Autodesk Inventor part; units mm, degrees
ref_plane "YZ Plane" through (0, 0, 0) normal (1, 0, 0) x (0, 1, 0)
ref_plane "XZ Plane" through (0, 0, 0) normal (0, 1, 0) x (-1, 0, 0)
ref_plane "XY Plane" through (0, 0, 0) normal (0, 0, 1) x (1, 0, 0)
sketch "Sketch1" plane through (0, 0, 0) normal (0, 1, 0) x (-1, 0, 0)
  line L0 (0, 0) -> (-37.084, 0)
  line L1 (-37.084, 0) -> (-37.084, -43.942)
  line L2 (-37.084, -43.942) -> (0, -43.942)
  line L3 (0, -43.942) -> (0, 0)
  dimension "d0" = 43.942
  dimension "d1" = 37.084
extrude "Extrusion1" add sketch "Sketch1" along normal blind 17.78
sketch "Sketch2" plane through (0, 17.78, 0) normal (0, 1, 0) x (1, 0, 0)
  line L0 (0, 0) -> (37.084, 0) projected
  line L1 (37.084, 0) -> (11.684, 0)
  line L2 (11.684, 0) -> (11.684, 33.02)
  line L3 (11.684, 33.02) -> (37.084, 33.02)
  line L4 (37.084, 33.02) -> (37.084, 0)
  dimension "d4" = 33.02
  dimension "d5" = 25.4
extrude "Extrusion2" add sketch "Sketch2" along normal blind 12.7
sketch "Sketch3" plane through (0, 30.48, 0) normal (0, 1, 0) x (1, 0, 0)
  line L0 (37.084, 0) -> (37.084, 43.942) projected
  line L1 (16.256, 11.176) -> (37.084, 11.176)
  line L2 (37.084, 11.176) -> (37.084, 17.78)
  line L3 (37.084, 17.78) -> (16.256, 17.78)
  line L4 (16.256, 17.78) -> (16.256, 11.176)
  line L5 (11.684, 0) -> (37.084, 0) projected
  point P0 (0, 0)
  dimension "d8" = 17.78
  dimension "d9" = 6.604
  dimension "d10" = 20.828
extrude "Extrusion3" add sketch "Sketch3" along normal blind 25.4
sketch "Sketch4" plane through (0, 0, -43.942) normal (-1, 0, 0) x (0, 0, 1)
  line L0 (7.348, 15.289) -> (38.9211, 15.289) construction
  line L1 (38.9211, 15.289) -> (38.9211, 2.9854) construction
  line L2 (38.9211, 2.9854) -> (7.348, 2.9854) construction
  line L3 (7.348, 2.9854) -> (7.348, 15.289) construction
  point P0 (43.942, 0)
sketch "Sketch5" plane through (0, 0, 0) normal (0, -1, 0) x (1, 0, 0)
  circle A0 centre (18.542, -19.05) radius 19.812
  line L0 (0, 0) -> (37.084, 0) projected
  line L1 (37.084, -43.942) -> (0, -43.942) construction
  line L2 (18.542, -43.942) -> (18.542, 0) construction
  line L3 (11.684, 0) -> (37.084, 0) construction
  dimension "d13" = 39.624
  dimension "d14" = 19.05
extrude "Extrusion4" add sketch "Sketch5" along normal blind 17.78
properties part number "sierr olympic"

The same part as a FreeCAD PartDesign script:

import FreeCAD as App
import Part
import Sketcher
Q = App.Units.Quantity

doc = App.newDocument("Part")
body = doc.addObject("PartDesign::Body", "Body")

# Sketch on XZ plane
sketch1 = body.newObject("Sketcher::SketchObject", "Sketch")
sketch1.AttachmentSupport = (doc.getObject("XZ_Plane"), [""])
sketch1.MapMode = "FlatFace"
sketch1.addGeometry([
    Part.LineSegment(App.Vector(0, -44, 0), App.Vector(0, 0, 0)),
    Part.LineSegment(App.Vector(0, 0, 0), App.Vector(37, 0, 0)),
    Part.LineSegment(App.Vector(37, 0, 0), App.Vector(37, -44, 0)),
    Part.LineSegment(App.Vector(37, -44, 0), App.Vector(0, -44, 0)),
], False)
sketch1.addConstraint([
    Sketcher.Constraint("Coincident", 0, 2, 1, 1),
    Sketcher.Constraint("Coincident", 1, 2, 2, 1),
    Sketcher.Constraint("Coincident", 2, 2, 3, 1),
    Sketcher.Constraint("Coincident", 3, 2, 0, 1),
    Sketcher.Constraint("Vertical", 0),
    Sketcher.Constraint("Horizontal", 1),
    Sketcher.Constraint("Vertical", 2),
    Sketcher.Constraint("Horizontal", 3),
    Sketcher.Constraint("Coincident", 0, 2, -1, 1),
    Sketcher.Constraint("DistanceX", 1, 1, 1, 2, Q("1.46 in")),
    Sketcher.Constraint("DistanceY", 0, 1, 0, 2, Q("1.73 in")),
])
pad1 = body.newObject("PartDesign::Pad", "Pad")
pad1.Profile = sketch1
pad1.Length = Q("0.7 in")
pad1.Reversed = True

# Sketch on XZ plane
sketch2 = body.newObject("Sketcher::SketchObject", "Sketch001")
sketch2.AttachmentSupport = (doc.getObject("XZ_Plane"), [""])
sketch2.MapMode = "FlatFace"
sketch2.AttachmentOffset = App.Placement(App.Vector(0, 0, -0.7 * 25.4), App.Rotation())
sketch2.addGeometry([
    Part.LineSegment(App.Vector(12, -33, 0), App.Vector(12, 0, 0)),
    Part.LineSegment(App.Vector(12, 0, 0), App.Vector(37, 0, 0)),
    Part.LineSegment(App.Vector(37, 0, 0), App.Vector(37, -33, 0)),
    Part.LineSegment(App.Vector(37, -33, 0), App.Vector(12, -33, 0)),
], False)
sketch2.addConstraint([
    Sketcher.Constraint("Coincident", 0, 2, 1, 1),
    Sketcher.Constraint("Coincident", 1, 2, 2, 1),
    Sketcher.Constraint("Coincident", 2, 2, 3, 1),
    Sketcher.Constraint("Coincident", 3, 2, 0, 1),
    Sketcher.Constraint("Vertical", 0),
    Sketcher.Constraint("Horizontal", 1),
    Sketcher.Constraint("Vertical", 2),
    Sketcher.Constraint("Horizontal", 3),
    Sketcher.Constraint("PointOnObject", 0, 2, -1),
    Sketcher.Constraint("DistanceX", 1, 1, 1, 2, Q("1 in")),
    Sketcher.Constraint("DistanceY", 0, 1, 0, 2, Q("1.3 in")),
    Sketcher.Constraint("DistanceX", -1, 1, 0, 2, Q("0.46 in")),
])
pad2 = body.newObject("PartDesign::Pad", "Pad001")
pad2.Profile = sketch2
pad2.Length = Q("0.5 in")
pad2.Reversed = True

# Sketch on XZ plane
sketch3 = body.newObject("Sketcher::SketchObject", "Sketch002")
sketch3.AttachmentSupport = (doc.getObject("XZ_Plane"), [""])
sketch3.MapMode = "FlatFace"
sketch3.AttachmentOffset = App.Placement(App.Vector(0, 0, -1.2 * 25.4), App.Rotation())
sketch3.addGeometry([
    Part.LineSegment(App.Vector(16, -11, 0), App.Vector(37, -11, 0)),
    Part.LineSegment(App.Vector(37, -11, 0), App.Vector(37, -18, 0)),
    Part.LineSegment(App.Vector(37, -18, 0), App.Vector(16, -18, 0)),
    Part.LineSegment(App.Vector(16, -18, 0), App.Vector(16, -11, 0)),
], False)
sketch3.addConstraint([
    Sketcher.Constraint("Coincident", 0, 2, 1, 1),
    Sketcher.Constraint("Coincident", 1, 2, 2, 1),
    Sketcher.Constraint("Coincident", 2, 2, 3, 1),
    Sketcher.Constraint("Coincident", 3, 2, 0, 1),
    Sketcher.Constraint("Horizontal", 0),
    Sketcher.Constraint("Vertical", 1),
    Sketcher.Constraint("Horizontal", 2),
    Sketcher.Constraint("Vertical", 3),
    Sketcher.Constraint("DistanceX", 0, 1, 0, 2, Q("0.82 in")),
    Sketcher.Constraint("DistanceY", 1, 2, 1, 1, Q("0.26 in")),
    Sketcher.Constraint("DistanceY", 1, 2, -1, 1, Q("0.7 in")),
    Sketcher.Constraint("DistanceX", -1, 1, 0, 2, Q("1.46 in")),
])
pad3 = body.newObject("PartDesign::Pad", "Pad002")
pad3.Profile = sketch3
pad3.Length = Q("1 in")
pad3.Reversed = True

# Sketch on XZ plane
sketch4 = body.newObject("Sketcher::SketchObject", "Sketch003")
sketch4.AttachmentSupport = (doc.getObject("XZ_Plane"), [""])
sketch4.MapMode = "FlatFace"
sketch4.addGeometry(Part.Circle(App.Vector(19, -19, 0), App.Vector(0, 0, 1), 20), False)
sketch4.addConstraint([
    Sketcher.Constraint("Diameter", 0, Q("1.56 in")),
    Sketcher.Constraint("DistanceY", 0, 3, -1, 1, Q("0.75 in")),
    Sketcher.Constraint("DistanceX", -1, 1, 0, 3, Q("0.73 in")),
])
pad4 = body.newObject("PartDesign::Pad", "Pad003")
pad4.Profile = sketch4
pad4.Length = Q("0.7 in")

doc.recompute()
